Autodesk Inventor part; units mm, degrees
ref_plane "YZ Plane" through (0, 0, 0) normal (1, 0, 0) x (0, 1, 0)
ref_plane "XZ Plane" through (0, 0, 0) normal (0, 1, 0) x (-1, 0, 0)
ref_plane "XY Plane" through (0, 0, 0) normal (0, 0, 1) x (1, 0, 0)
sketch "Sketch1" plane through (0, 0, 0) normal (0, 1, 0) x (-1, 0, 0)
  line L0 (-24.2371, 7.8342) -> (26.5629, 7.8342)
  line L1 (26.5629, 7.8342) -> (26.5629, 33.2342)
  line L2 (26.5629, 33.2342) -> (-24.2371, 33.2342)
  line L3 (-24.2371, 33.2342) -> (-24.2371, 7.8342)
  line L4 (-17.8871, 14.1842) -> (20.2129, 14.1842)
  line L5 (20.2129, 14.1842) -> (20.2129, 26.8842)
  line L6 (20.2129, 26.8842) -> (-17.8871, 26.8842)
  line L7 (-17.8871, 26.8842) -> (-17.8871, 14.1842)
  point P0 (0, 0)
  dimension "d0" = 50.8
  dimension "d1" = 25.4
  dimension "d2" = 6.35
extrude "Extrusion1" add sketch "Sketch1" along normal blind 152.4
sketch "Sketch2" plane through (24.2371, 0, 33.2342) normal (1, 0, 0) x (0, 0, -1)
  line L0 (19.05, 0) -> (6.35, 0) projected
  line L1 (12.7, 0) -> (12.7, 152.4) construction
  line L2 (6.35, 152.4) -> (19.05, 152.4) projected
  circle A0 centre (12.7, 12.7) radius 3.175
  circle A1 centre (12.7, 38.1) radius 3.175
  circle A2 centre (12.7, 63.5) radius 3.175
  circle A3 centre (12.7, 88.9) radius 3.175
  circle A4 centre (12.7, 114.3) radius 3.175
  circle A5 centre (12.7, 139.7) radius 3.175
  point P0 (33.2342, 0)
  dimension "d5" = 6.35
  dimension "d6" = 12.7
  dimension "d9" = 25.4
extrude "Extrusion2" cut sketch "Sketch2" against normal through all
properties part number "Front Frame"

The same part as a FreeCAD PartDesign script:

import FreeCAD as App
import Part
import Sketcher
Q = App.Units.Quantity


def add_polygon(sketch, points):
    """Adds a closed chain of lines whose ends are joined by coincident constraints."""
    first, n = sketch.GeometryCount, len(points)
    for a, b in zip(points, points[1:] + points[:1]):
        sketch.addGeometry(Part.LineSegment(App.Vector(*a, 0), App.Vector(*b, 0)), False)
    for i in range(n):
        sketch.addConstraint(Sketcher.Constraint("Coincident", first + i, 2, first + (i + 1) % n, 1))

doc = App.newDocument("Part")
body = doc.addObject("PartDesign::Body", "Body")

sketch1 = body.newObject("Sketcher::SketchObject", "Sketch")
sketch1.AttachmentSupport = (doc.getObject("XZ_Plane"), [""])
sketch1.MapMode = "FlatFace"
add_polygon(sketch1, [(24, 33), (24, 8), (-27, 8), (-27, 33)])
add_polygon(sketch1, [(-20, 14), (18, 14), (18, 27), (-20, 27)])
sketch1.addConstraint(Sketcher.Constraint("Vertical", 0))
sketch1.addConstraint(Sketcher.Constraint("Horizontal", 1))
sketch1.addConstraint(Sketcher.Constraint("Vertical", 2))
sketch1.addConstraint(Sketcher.Constraint("Horizontal", 3))
sketch1.addConstraint(Sketcher.Constraint("Horizontal", 4))
sketch1.addConstraint(Sketcher.Constraint("Vertical", 5))
sketch1.addConstraint(Sketcher.Constraint("Horizontal", 6))
sketch1.addConstraint(Sketcher.Constraint("Vertical", 7))
sketch1.addConstraint(Sketcher.Constraint("DistanceX", 1, 2, 1, 1, Q("2 in")))
sketch1.addConstraint(Sketcher.Constraint("DistanceY", 0, 2, 0, 1, Q("1 in")))
sketch1.addConstraint(Sketcher.Constraint("DistanceX", 4, 2, 0, 2, Q("0.25 in")))
sketch1.addConstraint(Sketcher.Constraint("DistanceY", 0, 2, 4, 2, Q("0.25 in")))
sketch1.addConstraint(Sketcher.Constraint("DistanceY", 5, 2, 3, 2, Q("0.25 in")))
sketch1.addConstraint(Sketcher.Constraint("DistanceX", 2, 2, 6, 2, Q("0.25 in")))
sketch1.addConstraint(Sketcher.Constraint("DistanceX", -1, 1, 0, 2, 24.237))
sketch1.addConstraint(Sketcher.Constraint("DistanceY", -1, 1, 0, 2, 7.8342))
pad1 = body.newObject("PartDesign::Pad", "Pad")
pad1.Profile = sketch1
pad1.Length = Q("6 in")
pad1.Reversed = True

sketch2 = body.newObject("Sketcher::SketchObject", "Sketch001")
sketch2.AttachmentSupport = (doc.getObject("YZ_Plane"), [""])
sketch2.MapMode = "FlatFace"
sketch2.AttachmentOffset = App.Placement(App.Vector(0, 0, 24.2371), App.Rotation())
sketch2.addGeometry(Part.Circle(App.Vector(12.7, 20.5, 0), App.Vector(0, 0, 1), 3.2), False)
sketch2.addGeometry(Part.Circle(App.Vector(38.1, 20.5, 0), App.Vector(0, 0, 1), 3.2), False)
sketch2.addGeometry(Part.Circle(App.Vector(63.5, 20.5, 0), App.Vector(0, 0, 1), 3.2), False)
sketch2.addGeometry(Part.Circle(App.Vector(88.9, 20.5, 0), App.Vector(0, 0, 1), 3.2), False)
sketch2.addGeometry(Part.Circle(App.Vector(114.3, 20.5, 0), App.Vector(0, 0, 1), 3.2), False)
sketch2.addGeometry(Part.Circle(App.Vector(139.7, 20.5, 0), App.Vector(0, 0, 1), 3.2), False)
sketch2.addConstraint(Sketcher.Constraint("Equal", 0, 1))
sketch2.addConstraint(Sketcher.Constraint("Equal", 1, 2))
sketch2.addConstraint(Sketcher.Constraint("Equal", 2, 3))
sketch2.addConstraint(Sketcher.Constraint("Equal", 3, 4))
sketch2.addConstraint(Sketcher.Constraint("Equal", 4, 5))
sketch2.addConstraint(Sketcher.Constraint("Horizontal", 0, 3, 1, 3))
sketch2.addConstraint(Sketcher.Constraint("Horizontal", 1, 3, 2, 3))
sketch2.addConstraint(Sketcher.Constraint("Horizontal", 2, 3, 3, 3))
sketch2.addConstraint(Sketcher.Constraint("Horizontal", 3, 3, 4, 3))
sketch2.addConstraint(Sketcher.Constraint("Horizontal", 4, 3, 5, 3))
sketch2.addConstraint(Sketcher.Constraint("Diameter", 0, Q("0.25 in")))
sketch2.addConstraint(Sketcher.Constraint("DistanceX", 0, 3, 1, 3, Q("1 in")))
sketch2.addConstraint(Sketcher.Constraint("DistanceX", 1, 3, 2, 3, Q("1 in")))
sketch2.addConstraint(Sketcher.Constraint("DistanceX", 2, 3, 3, 3, Q("1 in")))
sketch2.addConstraint(Sketcher.Constraint("DistanceX", 3, 3, 4, 3, Q("1 in")))
sketch2.addConstraint(Sketcher.Constraint("DistanceX", 4, 3, 5, 3, Q("1 in")))
sketch2.addConstraint(Sketcher.Constraint("DistanceX", -1, 1, 0, 3, Q("0.5 in")))
sketch2.addConstraint(Sketcher.Constraint("DistanceY", -1, 1, 0, 3, 20.5342))
pocket1 = body.newObject("PartDesign::Pocket", "Pocket")
pocket1.Profile = sketch2
pocket1.Type = "ThroughAll"

doc.recompute()
